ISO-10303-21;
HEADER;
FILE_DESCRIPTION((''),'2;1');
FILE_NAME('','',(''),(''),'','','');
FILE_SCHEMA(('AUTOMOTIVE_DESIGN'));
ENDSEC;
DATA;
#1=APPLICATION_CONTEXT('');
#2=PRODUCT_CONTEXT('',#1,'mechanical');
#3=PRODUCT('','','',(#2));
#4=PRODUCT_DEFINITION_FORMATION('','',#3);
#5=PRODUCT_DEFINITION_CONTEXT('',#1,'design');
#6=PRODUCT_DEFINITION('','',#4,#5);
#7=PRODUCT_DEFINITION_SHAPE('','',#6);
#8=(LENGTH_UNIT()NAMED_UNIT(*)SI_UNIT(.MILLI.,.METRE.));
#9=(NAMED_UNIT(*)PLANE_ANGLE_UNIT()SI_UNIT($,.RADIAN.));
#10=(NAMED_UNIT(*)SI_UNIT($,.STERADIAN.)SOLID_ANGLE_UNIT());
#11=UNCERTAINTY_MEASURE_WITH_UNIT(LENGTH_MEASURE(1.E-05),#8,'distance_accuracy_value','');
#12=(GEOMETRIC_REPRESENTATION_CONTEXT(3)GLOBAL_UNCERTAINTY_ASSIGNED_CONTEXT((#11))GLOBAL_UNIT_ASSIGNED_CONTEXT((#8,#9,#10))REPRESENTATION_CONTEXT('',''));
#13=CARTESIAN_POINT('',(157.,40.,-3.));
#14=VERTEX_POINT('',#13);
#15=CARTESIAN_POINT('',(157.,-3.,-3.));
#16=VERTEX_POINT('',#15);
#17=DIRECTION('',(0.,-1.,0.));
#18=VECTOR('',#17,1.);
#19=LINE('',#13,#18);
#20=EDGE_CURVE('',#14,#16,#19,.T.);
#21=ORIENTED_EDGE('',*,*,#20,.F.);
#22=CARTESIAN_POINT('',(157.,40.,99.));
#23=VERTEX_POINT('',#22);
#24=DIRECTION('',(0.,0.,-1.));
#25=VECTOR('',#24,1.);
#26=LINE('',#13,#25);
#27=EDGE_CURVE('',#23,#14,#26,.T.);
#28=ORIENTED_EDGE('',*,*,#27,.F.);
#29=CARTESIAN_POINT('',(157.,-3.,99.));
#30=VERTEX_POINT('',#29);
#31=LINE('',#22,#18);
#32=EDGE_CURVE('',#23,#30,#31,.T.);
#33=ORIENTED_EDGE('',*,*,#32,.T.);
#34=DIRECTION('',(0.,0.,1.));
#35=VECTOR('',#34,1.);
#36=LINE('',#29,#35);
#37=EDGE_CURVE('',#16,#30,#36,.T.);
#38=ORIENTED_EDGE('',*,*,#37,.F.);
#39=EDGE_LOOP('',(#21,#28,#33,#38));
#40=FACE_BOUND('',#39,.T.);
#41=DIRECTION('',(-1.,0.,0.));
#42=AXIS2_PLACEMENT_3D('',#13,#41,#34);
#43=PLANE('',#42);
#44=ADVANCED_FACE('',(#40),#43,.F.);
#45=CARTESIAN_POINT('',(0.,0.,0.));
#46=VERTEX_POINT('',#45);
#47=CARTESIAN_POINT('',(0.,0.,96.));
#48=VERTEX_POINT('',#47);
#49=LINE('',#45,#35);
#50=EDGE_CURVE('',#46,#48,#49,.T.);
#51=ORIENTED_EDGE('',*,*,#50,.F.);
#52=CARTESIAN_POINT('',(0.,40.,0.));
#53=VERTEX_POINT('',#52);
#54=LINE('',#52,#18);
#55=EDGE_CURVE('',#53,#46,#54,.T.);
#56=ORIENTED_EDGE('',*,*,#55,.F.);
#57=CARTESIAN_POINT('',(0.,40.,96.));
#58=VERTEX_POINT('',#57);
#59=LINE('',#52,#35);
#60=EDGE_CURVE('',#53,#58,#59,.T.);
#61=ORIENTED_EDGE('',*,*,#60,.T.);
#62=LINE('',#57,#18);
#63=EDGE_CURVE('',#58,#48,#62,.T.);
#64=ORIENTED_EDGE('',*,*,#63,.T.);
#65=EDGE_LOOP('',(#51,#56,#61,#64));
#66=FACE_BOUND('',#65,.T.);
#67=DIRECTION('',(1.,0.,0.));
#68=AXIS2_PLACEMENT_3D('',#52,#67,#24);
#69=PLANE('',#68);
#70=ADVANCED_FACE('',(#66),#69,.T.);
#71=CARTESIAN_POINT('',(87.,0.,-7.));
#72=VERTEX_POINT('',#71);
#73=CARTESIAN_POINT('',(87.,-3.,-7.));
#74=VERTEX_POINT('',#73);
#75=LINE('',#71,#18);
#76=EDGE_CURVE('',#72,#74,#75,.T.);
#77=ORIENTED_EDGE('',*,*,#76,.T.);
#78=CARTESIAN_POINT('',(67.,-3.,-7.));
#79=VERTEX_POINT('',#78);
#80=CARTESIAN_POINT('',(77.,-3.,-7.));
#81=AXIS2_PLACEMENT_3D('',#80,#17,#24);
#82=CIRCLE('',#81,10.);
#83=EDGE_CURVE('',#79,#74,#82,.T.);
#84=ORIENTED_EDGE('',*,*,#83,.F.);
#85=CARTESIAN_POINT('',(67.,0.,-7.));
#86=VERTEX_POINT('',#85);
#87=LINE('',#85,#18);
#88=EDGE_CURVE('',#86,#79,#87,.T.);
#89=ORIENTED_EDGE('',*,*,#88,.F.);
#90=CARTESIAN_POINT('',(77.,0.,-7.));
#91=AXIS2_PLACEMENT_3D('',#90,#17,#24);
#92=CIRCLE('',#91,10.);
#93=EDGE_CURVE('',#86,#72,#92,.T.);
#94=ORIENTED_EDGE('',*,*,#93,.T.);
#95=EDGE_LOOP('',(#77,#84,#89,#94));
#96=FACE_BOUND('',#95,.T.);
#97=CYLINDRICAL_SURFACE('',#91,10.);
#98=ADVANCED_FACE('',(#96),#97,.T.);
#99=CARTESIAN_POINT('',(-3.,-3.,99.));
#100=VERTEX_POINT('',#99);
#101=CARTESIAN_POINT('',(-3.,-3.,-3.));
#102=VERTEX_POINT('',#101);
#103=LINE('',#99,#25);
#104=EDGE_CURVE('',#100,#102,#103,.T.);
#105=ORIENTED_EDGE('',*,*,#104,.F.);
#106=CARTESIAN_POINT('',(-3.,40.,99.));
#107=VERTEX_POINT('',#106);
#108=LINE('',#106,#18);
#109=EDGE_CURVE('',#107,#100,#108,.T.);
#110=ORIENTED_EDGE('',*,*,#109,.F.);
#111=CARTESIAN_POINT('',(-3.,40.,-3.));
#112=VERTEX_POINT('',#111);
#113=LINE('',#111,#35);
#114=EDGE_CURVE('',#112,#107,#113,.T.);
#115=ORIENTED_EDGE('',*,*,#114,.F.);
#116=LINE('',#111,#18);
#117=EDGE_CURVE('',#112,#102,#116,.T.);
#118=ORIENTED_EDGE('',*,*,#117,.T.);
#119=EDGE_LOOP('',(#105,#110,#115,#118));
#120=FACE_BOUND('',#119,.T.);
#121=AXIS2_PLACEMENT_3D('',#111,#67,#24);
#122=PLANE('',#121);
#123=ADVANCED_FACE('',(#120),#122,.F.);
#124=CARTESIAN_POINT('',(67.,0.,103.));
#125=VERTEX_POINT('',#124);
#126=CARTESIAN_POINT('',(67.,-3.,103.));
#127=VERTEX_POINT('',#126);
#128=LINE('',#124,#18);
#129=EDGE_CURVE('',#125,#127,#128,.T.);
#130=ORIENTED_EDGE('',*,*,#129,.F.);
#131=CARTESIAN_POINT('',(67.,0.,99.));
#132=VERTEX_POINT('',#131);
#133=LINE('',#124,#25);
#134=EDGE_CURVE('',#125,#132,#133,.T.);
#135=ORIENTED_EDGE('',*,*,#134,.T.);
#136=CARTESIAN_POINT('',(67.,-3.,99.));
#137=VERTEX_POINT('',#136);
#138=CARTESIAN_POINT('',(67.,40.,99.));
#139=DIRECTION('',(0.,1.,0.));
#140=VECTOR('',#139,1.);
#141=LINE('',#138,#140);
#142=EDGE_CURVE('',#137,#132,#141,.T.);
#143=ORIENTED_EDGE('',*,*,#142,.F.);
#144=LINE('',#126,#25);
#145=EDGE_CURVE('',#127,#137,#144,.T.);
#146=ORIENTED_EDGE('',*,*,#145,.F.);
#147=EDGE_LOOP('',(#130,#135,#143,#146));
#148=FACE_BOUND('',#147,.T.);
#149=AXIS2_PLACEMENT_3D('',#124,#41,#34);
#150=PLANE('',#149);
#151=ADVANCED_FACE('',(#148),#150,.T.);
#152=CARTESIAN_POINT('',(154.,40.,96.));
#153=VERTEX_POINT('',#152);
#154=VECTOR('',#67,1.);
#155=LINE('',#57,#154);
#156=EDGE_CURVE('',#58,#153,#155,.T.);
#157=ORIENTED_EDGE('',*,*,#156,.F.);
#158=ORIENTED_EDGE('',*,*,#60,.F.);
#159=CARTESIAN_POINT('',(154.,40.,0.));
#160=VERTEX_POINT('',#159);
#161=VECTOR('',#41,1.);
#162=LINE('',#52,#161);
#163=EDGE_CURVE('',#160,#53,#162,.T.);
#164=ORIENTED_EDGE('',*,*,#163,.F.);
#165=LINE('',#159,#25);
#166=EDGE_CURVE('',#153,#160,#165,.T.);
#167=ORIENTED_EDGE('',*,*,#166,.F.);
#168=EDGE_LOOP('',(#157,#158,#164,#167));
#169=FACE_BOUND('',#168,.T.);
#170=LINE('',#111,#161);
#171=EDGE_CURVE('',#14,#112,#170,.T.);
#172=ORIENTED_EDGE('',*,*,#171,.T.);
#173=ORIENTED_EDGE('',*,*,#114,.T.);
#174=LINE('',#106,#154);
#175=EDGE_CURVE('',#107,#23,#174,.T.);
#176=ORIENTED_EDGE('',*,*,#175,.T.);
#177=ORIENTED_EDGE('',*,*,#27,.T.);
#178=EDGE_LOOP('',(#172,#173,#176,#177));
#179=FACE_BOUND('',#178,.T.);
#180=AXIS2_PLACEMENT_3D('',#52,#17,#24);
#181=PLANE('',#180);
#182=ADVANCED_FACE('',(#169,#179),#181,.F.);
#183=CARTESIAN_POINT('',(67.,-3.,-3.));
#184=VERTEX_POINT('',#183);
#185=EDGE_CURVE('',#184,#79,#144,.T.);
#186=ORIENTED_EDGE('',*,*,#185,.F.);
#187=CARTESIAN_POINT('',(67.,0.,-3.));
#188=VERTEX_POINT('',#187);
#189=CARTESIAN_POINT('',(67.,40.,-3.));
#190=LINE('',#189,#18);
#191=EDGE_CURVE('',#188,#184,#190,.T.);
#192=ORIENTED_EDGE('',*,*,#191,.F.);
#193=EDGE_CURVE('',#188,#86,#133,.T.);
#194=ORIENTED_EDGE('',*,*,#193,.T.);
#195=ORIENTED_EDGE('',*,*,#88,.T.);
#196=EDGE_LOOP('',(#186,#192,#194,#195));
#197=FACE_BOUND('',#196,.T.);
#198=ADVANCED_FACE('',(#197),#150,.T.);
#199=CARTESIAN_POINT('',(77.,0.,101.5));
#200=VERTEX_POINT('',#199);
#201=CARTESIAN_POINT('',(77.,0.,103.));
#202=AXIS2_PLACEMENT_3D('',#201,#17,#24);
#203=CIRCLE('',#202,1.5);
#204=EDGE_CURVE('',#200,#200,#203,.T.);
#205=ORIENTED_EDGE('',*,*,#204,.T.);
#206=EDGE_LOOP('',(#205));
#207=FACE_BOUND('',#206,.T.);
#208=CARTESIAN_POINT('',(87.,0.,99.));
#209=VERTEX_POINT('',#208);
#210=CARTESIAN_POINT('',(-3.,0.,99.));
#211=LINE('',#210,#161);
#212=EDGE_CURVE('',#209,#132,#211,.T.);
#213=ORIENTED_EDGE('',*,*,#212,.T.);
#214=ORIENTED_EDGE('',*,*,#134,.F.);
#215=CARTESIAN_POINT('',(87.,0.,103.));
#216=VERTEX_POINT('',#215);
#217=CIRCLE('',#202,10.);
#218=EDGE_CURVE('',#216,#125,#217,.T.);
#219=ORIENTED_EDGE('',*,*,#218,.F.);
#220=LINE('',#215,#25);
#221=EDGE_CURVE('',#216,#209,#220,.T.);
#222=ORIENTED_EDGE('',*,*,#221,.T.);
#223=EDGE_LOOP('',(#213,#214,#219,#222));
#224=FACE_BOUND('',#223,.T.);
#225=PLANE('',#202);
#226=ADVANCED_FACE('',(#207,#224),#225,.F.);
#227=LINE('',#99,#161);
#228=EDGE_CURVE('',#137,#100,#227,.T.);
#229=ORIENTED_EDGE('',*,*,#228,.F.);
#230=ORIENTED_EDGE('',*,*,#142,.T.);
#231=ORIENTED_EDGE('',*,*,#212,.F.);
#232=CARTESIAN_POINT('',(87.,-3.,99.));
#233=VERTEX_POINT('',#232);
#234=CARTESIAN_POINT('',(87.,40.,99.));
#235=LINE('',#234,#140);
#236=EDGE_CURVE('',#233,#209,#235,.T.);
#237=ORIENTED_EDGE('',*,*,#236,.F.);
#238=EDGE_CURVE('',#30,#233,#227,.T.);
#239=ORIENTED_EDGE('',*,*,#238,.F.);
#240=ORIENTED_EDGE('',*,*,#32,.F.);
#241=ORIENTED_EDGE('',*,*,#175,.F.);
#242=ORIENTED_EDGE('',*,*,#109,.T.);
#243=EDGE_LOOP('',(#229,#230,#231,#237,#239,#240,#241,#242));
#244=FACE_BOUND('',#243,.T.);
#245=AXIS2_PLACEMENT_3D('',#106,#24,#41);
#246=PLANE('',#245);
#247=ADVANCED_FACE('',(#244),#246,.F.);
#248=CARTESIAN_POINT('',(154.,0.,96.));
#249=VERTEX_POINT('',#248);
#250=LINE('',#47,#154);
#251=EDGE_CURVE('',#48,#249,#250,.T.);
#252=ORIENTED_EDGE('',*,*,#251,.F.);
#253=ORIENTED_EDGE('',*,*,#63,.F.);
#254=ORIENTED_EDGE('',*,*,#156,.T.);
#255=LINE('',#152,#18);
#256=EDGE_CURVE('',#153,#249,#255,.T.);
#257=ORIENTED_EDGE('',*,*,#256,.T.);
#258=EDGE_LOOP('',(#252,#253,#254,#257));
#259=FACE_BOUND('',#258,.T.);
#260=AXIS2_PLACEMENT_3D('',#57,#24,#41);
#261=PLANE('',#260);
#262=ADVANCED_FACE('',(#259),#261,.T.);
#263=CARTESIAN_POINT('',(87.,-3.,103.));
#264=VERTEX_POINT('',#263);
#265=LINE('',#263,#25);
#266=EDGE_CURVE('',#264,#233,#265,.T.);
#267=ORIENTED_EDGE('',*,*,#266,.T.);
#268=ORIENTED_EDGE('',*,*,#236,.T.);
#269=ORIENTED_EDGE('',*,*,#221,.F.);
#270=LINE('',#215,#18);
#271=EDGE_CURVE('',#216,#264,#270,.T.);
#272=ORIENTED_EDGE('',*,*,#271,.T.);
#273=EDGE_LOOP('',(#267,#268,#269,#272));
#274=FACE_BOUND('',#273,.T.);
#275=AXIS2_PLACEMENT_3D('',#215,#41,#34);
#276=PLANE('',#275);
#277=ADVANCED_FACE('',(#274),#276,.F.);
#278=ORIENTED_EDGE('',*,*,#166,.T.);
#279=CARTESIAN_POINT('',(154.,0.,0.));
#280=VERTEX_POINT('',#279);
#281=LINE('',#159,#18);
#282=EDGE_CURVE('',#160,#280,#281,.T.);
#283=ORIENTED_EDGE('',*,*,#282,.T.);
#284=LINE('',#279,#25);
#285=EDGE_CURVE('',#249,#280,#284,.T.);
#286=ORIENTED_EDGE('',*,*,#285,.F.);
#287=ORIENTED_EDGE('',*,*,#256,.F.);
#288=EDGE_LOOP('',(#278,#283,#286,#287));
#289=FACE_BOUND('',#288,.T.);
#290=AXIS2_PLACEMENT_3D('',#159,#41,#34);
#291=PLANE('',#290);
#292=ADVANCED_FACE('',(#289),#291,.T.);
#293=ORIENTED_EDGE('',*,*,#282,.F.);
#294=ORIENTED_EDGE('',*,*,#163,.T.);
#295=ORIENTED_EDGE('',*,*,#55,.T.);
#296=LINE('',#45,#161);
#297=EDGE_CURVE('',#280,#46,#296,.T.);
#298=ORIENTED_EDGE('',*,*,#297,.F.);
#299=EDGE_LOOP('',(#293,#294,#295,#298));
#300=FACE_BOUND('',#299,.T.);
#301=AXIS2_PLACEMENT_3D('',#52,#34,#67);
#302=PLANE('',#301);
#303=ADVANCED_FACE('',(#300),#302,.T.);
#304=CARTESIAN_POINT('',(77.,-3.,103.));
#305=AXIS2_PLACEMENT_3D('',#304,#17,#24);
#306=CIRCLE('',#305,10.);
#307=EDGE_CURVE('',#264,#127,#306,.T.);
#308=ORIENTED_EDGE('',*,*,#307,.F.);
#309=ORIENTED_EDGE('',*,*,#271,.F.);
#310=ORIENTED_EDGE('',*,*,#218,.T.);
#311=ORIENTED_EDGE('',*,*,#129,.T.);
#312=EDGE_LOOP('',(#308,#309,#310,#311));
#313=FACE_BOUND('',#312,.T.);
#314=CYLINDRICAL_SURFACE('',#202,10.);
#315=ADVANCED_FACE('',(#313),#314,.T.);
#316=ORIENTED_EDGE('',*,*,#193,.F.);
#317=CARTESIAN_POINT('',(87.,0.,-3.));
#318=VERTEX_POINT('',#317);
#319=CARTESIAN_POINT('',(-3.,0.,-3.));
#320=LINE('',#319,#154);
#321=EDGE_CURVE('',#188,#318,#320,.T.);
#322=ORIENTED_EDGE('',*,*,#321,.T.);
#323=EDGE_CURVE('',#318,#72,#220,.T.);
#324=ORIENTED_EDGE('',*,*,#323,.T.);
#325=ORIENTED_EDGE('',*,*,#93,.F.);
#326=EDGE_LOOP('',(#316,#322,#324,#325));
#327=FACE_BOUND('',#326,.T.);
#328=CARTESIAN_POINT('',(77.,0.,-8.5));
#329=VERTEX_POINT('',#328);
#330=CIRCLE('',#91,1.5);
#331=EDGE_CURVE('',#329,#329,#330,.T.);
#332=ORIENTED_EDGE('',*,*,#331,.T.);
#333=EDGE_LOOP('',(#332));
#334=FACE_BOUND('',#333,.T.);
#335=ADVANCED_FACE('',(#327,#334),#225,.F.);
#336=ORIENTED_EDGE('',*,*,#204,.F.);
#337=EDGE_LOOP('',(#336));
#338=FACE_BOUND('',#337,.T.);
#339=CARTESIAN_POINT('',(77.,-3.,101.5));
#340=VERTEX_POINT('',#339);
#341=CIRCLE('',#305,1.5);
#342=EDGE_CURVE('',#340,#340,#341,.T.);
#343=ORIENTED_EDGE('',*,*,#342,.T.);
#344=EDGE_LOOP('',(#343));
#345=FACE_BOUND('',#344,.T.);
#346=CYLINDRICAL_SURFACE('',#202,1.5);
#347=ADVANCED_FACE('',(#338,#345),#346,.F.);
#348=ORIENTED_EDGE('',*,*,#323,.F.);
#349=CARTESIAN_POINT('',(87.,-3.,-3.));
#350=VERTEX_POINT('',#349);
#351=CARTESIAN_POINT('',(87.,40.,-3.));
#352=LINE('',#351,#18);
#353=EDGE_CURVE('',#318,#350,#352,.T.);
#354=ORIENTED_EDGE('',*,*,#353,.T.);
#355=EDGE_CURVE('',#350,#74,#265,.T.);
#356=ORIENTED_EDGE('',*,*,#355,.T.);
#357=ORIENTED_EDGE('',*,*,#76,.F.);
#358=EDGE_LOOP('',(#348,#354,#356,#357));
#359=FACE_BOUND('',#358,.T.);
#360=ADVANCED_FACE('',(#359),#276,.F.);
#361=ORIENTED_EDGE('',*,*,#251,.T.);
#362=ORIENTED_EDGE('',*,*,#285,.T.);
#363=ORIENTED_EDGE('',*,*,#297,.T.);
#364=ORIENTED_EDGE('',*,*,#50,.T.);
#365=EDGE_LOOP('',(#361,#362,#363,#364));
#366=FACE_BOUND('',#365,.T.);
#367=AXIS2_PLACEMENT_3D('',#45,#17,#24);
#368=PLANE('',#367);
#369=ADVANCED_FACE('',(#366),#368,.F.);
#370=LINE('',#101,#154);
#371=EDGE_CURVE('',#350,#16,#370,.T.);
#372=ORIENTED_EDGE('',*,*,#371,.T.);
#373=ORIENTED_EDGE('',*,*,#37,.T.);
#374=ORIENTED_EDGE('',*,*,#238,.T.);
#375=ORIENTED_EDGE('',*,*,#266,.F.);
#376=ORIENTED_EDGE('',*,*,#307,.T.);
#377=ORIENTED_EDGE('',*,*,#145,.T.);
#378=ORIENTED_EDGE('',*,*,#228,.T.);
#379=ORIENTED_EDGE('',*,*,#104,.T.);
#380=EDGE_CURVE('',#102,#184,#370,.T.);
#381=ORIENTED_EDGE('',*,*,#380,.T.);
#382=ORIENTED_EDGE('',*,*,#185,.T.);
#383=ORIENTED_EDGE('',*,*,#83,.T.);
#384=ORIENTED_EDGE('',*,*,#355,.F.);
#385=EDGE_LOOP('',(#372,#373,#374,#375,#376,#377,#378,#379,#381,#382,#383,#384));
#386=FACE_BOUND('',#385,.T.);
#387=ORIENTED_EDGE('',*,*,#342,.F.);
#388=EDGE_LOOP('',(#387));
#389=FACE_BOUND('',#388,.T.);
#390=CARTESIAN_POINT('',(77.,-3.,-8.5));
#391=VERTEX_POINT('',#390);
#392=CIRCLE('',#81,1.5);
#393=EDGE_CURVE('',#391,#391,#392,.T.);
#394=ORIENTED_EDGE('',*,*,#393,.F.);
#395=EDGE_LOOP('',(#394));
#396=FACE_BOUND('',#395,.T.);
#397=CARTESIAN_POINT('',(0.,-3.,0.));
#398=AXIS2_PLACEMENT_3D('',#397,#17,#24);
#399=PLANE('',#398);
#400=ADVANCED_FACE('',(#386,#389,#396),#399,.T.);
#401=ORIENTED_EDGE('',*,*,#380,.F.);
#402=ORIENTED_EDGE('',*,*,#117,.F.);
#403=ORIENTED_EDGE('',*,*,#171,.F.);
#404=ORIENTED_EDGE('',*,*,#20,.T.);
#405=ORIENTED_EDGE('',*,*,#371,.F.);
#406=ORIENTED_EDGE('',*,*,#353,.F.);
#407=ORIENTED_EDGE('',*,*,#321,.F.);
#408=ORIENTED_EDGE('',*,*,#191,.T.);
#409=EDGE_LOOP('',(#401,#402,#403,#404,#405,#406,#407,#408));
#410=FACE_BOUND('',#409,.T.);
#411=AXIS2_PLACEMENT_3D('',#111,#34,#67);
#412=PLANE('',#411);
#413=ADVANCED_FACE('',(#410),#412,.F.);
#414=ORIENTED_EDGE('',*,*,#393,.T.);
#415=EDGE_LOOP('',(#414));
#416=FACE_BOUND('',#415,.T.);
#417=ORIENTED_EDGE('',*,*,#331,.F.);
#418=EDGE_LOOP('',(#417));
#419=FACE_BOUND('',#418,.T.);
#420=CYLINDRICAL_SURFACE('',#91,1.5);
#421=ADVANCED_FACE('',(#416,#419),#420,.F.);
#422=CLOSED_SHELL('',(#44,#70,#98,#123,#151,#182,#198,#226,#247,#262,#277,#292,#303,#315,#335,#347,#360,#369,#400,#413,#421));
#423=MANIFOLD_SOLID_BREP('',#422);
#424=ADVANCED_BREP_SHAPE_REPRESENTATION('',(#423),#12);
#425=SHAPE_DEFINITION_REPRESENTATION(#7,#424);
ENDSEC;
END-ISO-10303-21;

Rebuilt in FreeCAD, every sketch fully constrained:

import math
import FreeCAD as App
import Part
import Sketcher

V = App.Vector

doc = App.newDocument("Part")
body = doc.addObject("PartDesign::Body", "Body")

# Sketch on XZ plane
sketch1 = body.newObject("Sketcher::SketchObject", "Sketch")
sketch1.AttachmentSupport = (doc.getObject("XZ_Plane"), [""])
sketch1.MapMode = "FlatFace"
sketch1.addGeometry(Part.LineSegment(V(-3, -3, 0), V(-3, 99, 0)), False)
sketch1.addGeometry(Part.LineSegment(V(-3, 99, 0), V(157, 99, 0)), False)
sketch1.addGeometry(Part.LineSegment(V(157, 99, 0), V(157, -3, 0)), False)
sketch1.addGeometry(Part.LineSegment(V(157, -3, 0), V(-3, -3, 0)), False)
sketch1.addGeometry(Part.LineSegment(V(154, 96, 0), V(0, 96, 0)), False)
sketch1.addGeometry(Part.LineSegment(V(0, 96, 0), V(0, 0, 0)), False)
sketch1.addGeometry(Part.LineSegment(V(0, 0, 0), V(154, 0, 0)), False)
sketch1.addGeometry(Part.LineSegment(V(154, 0, 0), V(154, 96, 0)), False)
sketch1.addConstraint(Sketcher.Constraint("Coincident", 0, 2, 1, 1))
sketch1.addConstraint(Sketcher.Constraint("Coincident", 1, 2, 2, 1))
sketch1.addConstraint(Sketcher.Constraint("Coincident", 2, 2, 3, 1))
sketch1.addConstraint(Sketcher.Constraint("Coincident", 3, 2, 0, 1))
sketch1.addConstraint(Sketcher.Constraint("Coincident", 4, 2, 5, 1))
sketch1.addConstraint(Sketcher.Constraint("Coincident", 5, 2, 6, 1))
sketch1.addConstraint(Sketcher.Constraint("Coincident", 6, 2, 7, 1))
sketch1.addConstraint(Sketcher.Constraint("Coincident", 7, 2, 4, 1))
sketch1.addConstraint(Sketcher.Constraint("Vertical", 0))
sketch1.addConstraint(Sketcher.Constraint("Horizontal", 1))
sketch1.addConstraint(Sketcher.Constraint("Vertical", 2))
sketch1.addConstraint(Sketcher.Constraint("Horizontal", 3))
sketch1.addConstraint(Sketcher.Constraint("Horizontal", 4))
sketch1.addConstraint(Sketcher.Constraint("Vertical", 5))
sketch1.addConstraint(Sketcher.Constraint("Horizontal", 6))
sketch1.addConstraint(Sketcher.Constraint("Vertical", 7))
sketch1.addConstraint(Sketcher.Constraint("Coincident", 5, 2, -1, 1))
sketch1.addConstraint(Sketcher.Constraint("DistanceX", 1, 1, 1, 2, 160.0))
sketch1.addConstraint(Sketcher.Constraint("DistanceX", 4, 2, 4, 1, 154.0))
sketch1.addConstraint(Sketcher.Constraint("DistanceY", 0, 1, 0, 2, 102.0))
sketch1.addConstraint(Sketcher.Constraint("DistanceY", 5, 2, 5, 1, 96.0))
sketch1.addConstraint(Sketcher.Constraint("DistanceX", 0, 2, -1, 1, 3.0))
sketch1.addConstraint(Sketcher.Constraint("DistanceY", -1, 1, 0, 2, 99.0))
pad1 = body.newObject("PartDesign::Pad", "Pad")
pad1.Profile = sketch1
pad1.Length = 40
pad1.Reversed = True

# Sketch on XZ plane
sketch2 = body.newObject("Sketcher::SketchObject", "Sketch001")
sketch2.AttachmentSupport = (doc.getObject("XZ_Plane"), [""])
sketch2.MapMode = "FlatFace"
sketch2.addGeometry(Part.LineSegment(V(-3, 99, 0), V(-3, -3, 0)), False)
sketch2.addGeometry(Part.LineSegment(V(-3, -3, 0), V(157, -3, 0)), False)
sketch2.addGeometry(Part.LineSegment(V(157, -3, 0), V(157, 99, 0)), False)
sketch2.addGeometry(Part.LineSegment(V(157, 99, 0), V(-3, 99, 0)), False)
sketch2.addConstraint(Sketcher.Constraint("Coincident", 0, 2, 1, 1))
sketch2.addConstraint(Sketcher.Constraint("Coincident", 1, 2, 2, 1))
sketch2.addConstraint(Sketcher.Constraint("Coincident", 2, 2, 3, 1))
sketch2.addConstraint(Sketcher.Constraint("Coincident", 3, 2, 0, 1))
sketch2.addConstraint(Sketcher.Constraint("Vertical", 0))
sketch2.addConstraint(Sketcher.Constraint("Horizontal", 1))
sketch2.addConstraint(Sketcher.Constraint("Vertical", 2))
sketch2.addConstraint(Sketcher.Constraint("Horizontal", 3))
sketch2.addConstraint(Sketcher.Constraint("DistanceX", 1, 1, 1, 2, 160.0))
sketch2.addConstraint(Sketcher.Constraint("DistanceY", 0, 2, 0, 1, 102.0))
sketch2.addConstraint(Sketcher.Constraint("DistanceX", 0, 2, -1, 1, 3.0))
sketch2.addConstraint(Sketcher.Constraint("DistanceY", 0, 2, -1, 1, 3.0))
pad2 = body.newObject("PartDesign::Pad", "Pad001")
pad2.Profile = sketch2
pad2.Length = 3

# Sketch on XZ plane
sketch3 = body.newObject("Sketcher::SketchObject", "Sketch002")
sketch3.AttachmentSupport = (doc.getObject("XZ_Plane"), [""])
sketch3.MapMode = "FlatFace"
sketch3.AttachmentOffset = App.Placement(V(0, 0, 3), App.Rotation())
sketch3.addGeometry(Part.LineSegment(V(87, -7, 0), V(87, 103, 0)), False)
sketch3.addGeometry(Part.ArcOfCircle(Part.Circle(V(77, 103, 0), V(0, 0, 1), 10), math.radians(0), math.radians(180)), False)
sketch3.addGeometry(Part.LineSegment(V(67, 103, 0), V(67, -7, 0)), False)
sketch3.addGeometry(Part.ArcOfCircle(Part.Circle(V(77, -7, 0), V(0, 0, 1), 10), math.radians(180), math.radians(360)), False)
sketch3.addGeometry(Part.Circle(V(77, -7, 0), V(0, 0, 1), 1.5), False)
sketch3.addGeometry(Part.Circle(V(77, 103, 0), V(0, 0, 1), 1.5), False)
sketch3.addConstraint(Sketcher.Constraint("Tangent", 0, 2, 1, 1))
sketch3.addConstraint(Sketcher.Constraint("Tangent", 1, 2, 2, 1))
sketch3.addConstraint(Sketcher.Constraint("Tangent", 2, 2, 3, 1))
sketch3.addConstraint(Sketcher.Constraint("Tangent", 3, 2, 0, 1))
sketch3.addConstraint(Sketcher.Constraint("Vertical", 0))
sketch3.addConstraint(Sketcher.Constraint("Vertical", 2))
sketch3.addConstraint(Sketcher.Constraint("Coincident", 4, 3, 3, 3))
sketch3.addConstraint(Sketcher.Constraint("Coincident", 5, 3, 1, 3))
sketch3.addConstraint(Sketcher.Constraint("Equal", 4, 5))
sketch3.addConstraint(Sketcher.Constraint("Diameter", 4, 3.0))
sketch3.addConstraint(Sketcher.Constraint("Radius", 1, 10.0))
sketch3.addConstraint(Sketcher.Constraint("DistanceY", 0, 1, 0, 2, 110.0))
sketch3.addConstraint(Sketcher.Constraint("DistanceX", -1, 1, 1, 3, 77.0))
sketch3.addConstraint(Sketcher.Constraint("DistanceY", -1, 1, 1, 3, 103.0))
pad3 = body.newObject("PartDesign::Pad", "Pad002")
pad3.Profile = sketch3
pad3.Length = 3
pad3.Reversed = True

doc.recompute()
